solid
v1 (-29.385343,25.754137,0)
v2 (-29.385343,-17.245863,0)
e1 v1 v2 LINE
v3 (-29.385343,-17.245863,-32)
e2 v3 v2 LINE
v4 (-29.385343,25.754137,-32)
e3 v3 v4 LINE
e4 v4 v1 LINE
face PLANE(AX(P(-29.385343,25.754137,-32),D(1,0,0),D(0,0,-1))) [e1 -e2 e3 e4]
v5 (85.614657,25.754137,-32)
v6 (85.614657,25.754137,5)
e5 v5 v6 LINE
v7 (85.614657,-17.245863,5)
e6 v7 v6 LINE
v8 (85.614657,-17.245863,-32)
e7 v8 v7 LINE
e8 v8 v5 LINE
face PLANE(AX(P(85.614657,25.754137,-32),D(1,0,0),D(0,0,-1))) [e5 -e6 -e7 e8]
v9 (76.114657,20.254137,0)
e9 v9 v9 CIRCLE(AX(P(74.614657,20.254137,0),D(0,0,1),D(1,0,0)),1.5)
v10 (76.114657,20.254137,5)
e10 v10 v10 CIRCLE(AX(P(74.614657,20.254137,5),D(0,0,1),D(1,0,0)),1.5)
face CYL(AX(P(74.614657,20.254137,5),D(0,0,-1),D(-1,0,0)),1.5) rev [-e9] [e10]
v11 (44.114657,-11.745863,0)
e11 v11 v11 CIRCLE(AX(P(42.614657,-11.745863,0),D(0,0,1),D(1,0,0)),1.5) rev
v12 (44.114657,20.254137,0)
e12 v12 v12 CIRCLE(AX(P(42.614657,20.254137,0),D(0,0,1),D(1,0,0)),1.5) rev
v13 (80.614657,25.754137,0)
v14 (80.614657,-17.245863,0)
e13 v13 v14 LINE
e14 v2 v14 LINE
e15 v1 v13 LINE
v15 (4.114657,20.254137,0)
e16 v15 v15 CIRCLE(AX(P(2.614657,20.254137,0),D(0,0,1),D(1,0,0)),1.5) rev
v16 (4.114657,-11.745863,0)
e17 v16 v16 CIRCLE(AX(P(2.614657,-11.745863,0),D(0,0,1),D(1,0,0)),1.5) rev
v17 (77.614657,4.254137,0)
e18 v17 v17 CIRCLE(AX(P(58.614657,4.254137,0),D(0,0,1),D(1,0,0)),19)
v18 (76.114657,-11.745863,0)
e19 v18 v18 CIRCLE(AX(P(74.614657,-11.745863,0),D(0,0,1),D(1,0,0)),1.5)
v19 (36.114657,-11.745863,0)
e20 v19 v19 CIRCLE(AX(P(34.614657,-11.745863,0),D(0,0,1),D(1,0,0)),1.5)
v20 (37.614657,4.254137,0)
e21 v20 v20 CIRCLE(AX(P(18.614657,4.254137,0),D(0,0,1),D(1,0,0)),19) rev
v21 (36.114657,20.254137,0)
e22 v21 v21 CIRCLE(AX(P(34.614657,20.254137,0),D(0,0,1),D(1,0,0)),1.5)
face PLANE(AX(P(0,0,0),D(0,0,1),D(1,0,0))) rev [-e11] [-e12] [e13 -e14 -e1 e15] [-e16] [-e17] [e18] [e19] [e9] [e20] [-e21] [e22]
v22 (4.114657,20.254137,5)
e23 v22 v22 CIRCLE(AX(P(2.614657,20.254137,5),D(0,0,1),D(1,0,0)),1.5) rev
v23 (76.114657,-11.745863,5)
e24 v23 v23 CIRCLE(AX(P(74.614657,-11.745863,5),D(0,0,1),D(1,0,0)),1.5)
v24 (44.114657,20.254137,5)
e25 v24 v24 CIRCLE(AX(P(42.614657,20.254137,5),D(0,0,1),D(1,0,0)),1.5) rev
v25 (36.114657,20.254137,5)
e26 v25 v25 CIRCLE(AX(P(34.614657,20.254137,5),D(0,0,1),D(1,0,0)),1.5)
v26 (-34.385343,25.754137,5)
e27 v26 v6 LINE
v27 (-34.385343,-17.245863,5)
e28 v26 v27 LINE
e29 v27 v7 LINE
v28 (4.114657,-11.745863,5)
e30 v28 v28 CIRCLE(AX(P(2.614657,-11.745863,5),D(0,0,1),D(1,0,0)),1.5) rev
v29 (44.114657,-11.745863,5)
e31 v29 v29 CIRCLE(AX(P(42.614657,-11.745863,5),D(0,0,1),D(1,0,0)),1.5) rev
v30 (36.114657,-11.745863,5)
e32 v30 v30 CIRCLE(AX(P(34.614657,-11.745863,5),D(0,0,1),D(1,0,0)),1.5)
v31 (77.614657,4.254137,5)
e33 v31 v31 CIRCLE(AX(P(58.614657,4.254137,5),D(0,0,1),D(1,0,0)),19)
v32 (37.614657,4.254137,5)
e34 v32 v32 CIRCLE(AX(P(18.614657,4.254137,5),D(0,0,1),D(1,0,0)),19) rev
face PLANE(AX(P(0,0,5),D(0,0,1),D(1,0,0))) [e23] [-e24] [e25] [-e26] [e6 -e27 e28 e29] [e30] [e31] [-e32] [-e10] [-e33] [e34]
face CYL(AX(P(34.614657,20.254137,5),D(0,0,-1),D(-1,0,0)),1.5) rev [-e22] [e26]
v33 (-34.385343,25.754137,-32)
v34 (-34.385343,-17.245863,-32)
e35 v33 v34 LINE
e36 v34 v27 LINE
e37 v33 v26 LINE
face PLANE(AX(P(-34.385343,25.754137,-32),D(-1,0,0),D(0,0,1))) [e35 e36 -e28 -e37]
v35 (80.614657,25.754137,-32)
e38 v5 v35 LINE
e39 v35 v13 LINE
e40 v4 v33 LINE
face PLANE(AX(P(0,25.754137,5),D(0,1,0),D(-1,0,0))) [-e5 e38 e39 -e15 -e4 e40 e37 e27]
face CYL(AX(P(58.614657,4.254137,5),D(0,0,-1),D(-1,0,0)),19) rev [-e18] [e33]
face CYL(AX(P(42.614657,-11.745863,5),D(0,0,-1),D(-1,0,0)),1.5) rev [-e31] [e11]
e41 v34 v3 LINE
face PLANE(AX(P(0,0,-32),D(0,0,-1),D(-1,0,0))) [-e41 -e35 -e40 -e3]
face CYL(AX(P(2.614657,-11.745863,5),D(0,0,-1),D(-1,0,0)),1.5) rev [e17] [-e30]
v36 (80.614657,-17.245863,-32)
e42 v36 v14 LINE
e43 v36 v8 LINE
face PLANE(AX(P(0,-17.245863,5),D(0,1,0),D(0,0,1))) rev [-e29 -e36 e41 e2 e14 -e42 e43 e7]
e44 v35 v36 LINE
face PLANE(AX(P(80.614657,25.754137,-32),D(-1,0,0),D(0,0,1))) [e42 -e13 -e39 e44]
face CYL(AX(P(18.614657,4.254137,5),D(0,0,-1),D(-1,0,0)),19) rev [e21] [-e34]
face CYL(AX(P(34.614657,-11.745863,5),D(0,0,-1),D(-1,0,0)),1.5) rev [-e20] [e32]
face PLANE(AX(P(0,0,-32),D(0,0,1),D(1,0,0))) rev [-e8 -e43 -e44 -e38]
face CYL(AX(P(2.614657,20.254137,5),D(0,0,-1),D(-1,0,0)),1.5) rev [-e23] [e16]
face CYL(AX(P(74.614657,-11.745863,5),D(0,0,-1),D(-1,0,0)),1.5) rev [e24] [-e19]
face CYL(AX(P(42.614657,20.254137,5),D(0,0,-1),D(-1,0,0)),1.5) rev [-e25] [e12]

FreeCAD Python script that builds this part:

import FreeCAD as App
import Part
import Sketcher
Q = App.Units.Quantity

doc = App.newDocument("Part")
body = doc.addObject("PartDesign::Body", "Body")

# Sketch on XY plane
sketch1 = body.newObject("Sketcher::SketchObject", "Sketch")
sketch1.AttachmentSupport = (doc.getObject("XY_Plane"), [""])
sketch1.MapMode = "FlatFace"
sketch1.addGeometry([
    Part.LineSegment(App.Vector(-29.4, 25.8, 0), App.Vector(-29.4, -17.2, 0)),  # 0
    Part.LineSegment(App.Vector(-29.4, -17.2, 0), App.Vector(80.6, -17.2, 0)),  # 1
    Part.LineSegment(App.Vector(80.6, -17.2, 0), App.Vector(80.6, 25.8, 0)),  # 2
    Part.LineSegment(App.Vector(80.6, 25.8, 0), App.Vector(-29.4, 25.8, 0)),  # 3
    Part.Circle(App.Vector(2.6, -11.7, 0), App.Vector(0, 0, 1), 1.5),  # 4
    Part.Circle(App.Vector(34.6, -11.7, 0), App.Vector(0, 0, 1), 1.5),  # 5
    Part.Circle(App.Vector(42.6, -11.7, 0), App.Vector(0, 0, 1), 1.5),  # 6
    Part.Circle(App.Vector(74.6, -11.7, 0), App.Vector(0, 0, 1), 1.5),  # 7
    Part.Circle(App.Vector(18.6, 4.3, 0), App.Vector(0, 0, 1), 19),  # 8
    Part.Circle(App.Vector(2.6, 20.3, 0), App.Vector(0, 0, 1), 1.5),  # 9
    Part.Circle(App.Vector(34.6, 20.3, 0), App.Vector(0, 0, 1), 1.5),  # 10
    Part.Circle(App.Vector(58.6, 4.3, 0), App.Vector(0, 0, 1), 19),  # 11
    Part.Circle(App.Vector(42.6, 20.3, 0), App.Vector(0, 0, 1), 1.5),  # 12
    Part.Circle(App.Vector(74.6, 20.3, 0), App.Vector(0, 0, 1), 1.5),  # 13
], False)
sketch1.addConstraint([
    Sketcher.Constraint("Coincident", 0, 2, 1, 1),
    Sketcher.Constraint("Coincident", 1, 2, 2, 1),
    Sketcher.Constraint("Coincident", 2, 2, 3, 1),
    Sketcher.Constraint("Coincident", 3, 2, 0, 1),
    Sketcher.Constraint("Vertical", 0),
    Sketcher.Constraint("Horizontal", 1),
    Sketcher.Constraint("Vertical", 2),
    Sketcher.Constraint("Horizontal", 3),
    Sketcher.Constraint("Equal", 4, 5),
    Sketcher.Constraint("Equal", 5, 6),
    Sketcher.Constraint("Equal", 6, 7),
    Sketcher.Constraint("Equal", 7, 9),
    Sketcher.Constraint("Equal", 9, 10),
    Sketcher.Constraint("Equal", 8, 11),
    Sketcher.Constraint("Equal", 10, 12),
    Sketcher.Constraint("Equal", 12, 13),
    Sketcher.Constraint("Horizontal", 4, 3, 5, 3),
    Sketcher.Constraint("Horizontal", 5, 3, 6, 3),
    Sketcher.Constraint("Horizontal", 6, 3, 7, 3),
    Sketcher.Constraint("Horizontal", 9, 3, 10, 3),
    Sketcher.Constraint("Horizontal", 8, 3, 11, 3),
    Sketcher.Constraint("Horizontal", 10, 3, 12, 3),
    Sketcher.Constraint("Horizontal", 12, 3, 13, 3),
    Sketcher.Constraint("Vertical", 4, 3, 9, 3),
    Sketcher.Constraint("Vertical", 5, 3, 10, 3),
    Sketcher.Constraint("Vertical", 6, 3, 12, 3),
    Sketcher.Constraint("Vertical", 7, 3, 13, 3),
    Sketcher.Constraint("Diameter", 4, Q("3 mm")),
    Sketcher.Constraint("Diameter", 8, Q("38 mm")),
    Sketcher.Constraint("DistanceX", 1, 1, 1, 2, Q("110 mm")),
    Sketcher.Constraint("DistanceY", 0, 2, 0, 1, Q("43 mm")),
    Sketcher.Constraint("DistanceX", 4, 3, 5, 3, Q("32 mm")),
    Sketcher.Constraint("DistanceX", 5, 3, 6, 3, Q("8 mm")),
    Sketcher.Constraint("DistanceX", 6, 3, 7, 3, Q("32 mm")),
    Sketcher.Constraint("DistanceX", 8, 3, 5, 3, Q("16 mm")),
    Sketcher.Constraint("DistanceY", 5, 3, 8, 3, Q("16 mm")),
    Sketcher.Constraint("DistanceY", 8, 3, 9, 3, Q("16 mm")),
    Sketcher.Constraint("DistanceX", 6, 3, 11, 3, Q("16 mm")),
    Sketcher.Constraint("DistanceX", 0, 2, 4, 3, Q("32 mm")),
    Sketcher.Constraint("DistanceY", 0, 2, 4, 3, Q("5.5 mm")),
    Sketcher.Constraint("DistanceX", -1, 1, 4, 3, Q("2.614657 mm")),
    Sketcher.Constraint("DistanceY", 4, 3, -1, 1, Q("11.745863 mm")),
])
pad1 = body.newObject("PartDesign::Pad", "Pad")
pad1.Profile = sketch1
pad1.Length = 5

# Sketch on XY plane
sketch2 = body.newObject("Sketcher::SketchObject", "Sketch001")
sketch2.AttachmentSupport = (doc.getObject("XY_Plane"), [""])
sketch2.MapMode = "FlatFace"
sketch2.AttachmentOffset = App.Placement(App.Vector(0, 0, 5), App.Rotation())
sketch2.addGeometry([
    Part.LineSegment(App.Vector(81, 26, 0), App.Vector(81, -17, 0)),  # 0
    Part.LineSegment(App.Vector(81, -17, 0), App.Vector(86, -17, 0)),  # 1
    Part.LineSegment(App.Vector(86, -17, 0), App.Vector(86, 26, 0)),  # 2
    Part.LineSegment(App.Vector(86, 26, 0), App.Vector(81, 26, 0)),  # 3
    Part.LineSegment(App.Vector(-34, 26, 0), App.Vector(-34, -17, 0)),  # 4
    Part.LineSegment(App.Vector(-34, -17, 0), App.Vector(-29, -17, 0)),  # 5
    Part.LineSegment(App.Vector(-29, -17, 0), App.Vector(-29, 26, 0)),  # 6
    Part.LineSegment(App.Vector(-29, 26, 0), App.Vector(-34, 26, 0)),  # 7
], False)
sketch2.addConstraint([
    Sketcher.Constraint("Coincident", 0, 2, 1, 1),
    Sketcher.Constraint("Coincident", 1, 2, 2, 1),
    Sketcher.Constraint("Coincident", 2, 2, 3, 1),
    Sketcher.Constraint("Coincident", 3, 2, 0, 1),
    Sketcher.Constraint("Coincident", 4, 2, 5, 1),
    Sketcher.Constraint("Coincident", 5, 2, 6, 1),
    Sketcher.Constraint("Coincident", 6, 2, 7, 1),
    Sketcher.Constraint("Coincident", 7, 2, 4, 1),
    Sketcher.Constraint("Vertical", 0),
    Sketcher.Constraint("Horizontal", 1),
    Sketcher.Constraint("Vertical", 2),
    Sketcher.Constraint("Horizontal", 3),
    Sketcher.Constraint("Vertical", 4),
    Sketcher.Constraint("Horizontal", 5),
    Sketcher.Constraint("Vertical", 6),
    Sketcher.Constraint("Horizontal", 7),
    Sketcher.Constraint("Horizontal", 1, 2, 4, 2),
    Sketcher.Constraint("Horizontal", 3, 2, 6, 2),
    Sketcher.Constraint("Equal", 3, 5),
    Sketcher.Constraint("DistanceX", 1, 1, 1, 2, Q("5 mm")),
    Sketcher.Constraint("DistanceY", 0, 2, 0, 1, Q("43 mm")),
    Sketcher.Constraint("DistanceX", 4, 2, 0, 2, Q("115 mm")),
    Sketcher.Constraint("DistanceX", -1, 1, 0, 2, Q("80.614657 mm")),
    Sketcher.Constraint("DistanceY", 0, 2, -1, 1, Q("17.245863 mm")),
])
pad2 = body.newObject("PartDesign::Pad", "Pad001")
pad2.Profile = sketch2
pad2.Length = 37
pad2.Reversed = True

doc.recompute()
